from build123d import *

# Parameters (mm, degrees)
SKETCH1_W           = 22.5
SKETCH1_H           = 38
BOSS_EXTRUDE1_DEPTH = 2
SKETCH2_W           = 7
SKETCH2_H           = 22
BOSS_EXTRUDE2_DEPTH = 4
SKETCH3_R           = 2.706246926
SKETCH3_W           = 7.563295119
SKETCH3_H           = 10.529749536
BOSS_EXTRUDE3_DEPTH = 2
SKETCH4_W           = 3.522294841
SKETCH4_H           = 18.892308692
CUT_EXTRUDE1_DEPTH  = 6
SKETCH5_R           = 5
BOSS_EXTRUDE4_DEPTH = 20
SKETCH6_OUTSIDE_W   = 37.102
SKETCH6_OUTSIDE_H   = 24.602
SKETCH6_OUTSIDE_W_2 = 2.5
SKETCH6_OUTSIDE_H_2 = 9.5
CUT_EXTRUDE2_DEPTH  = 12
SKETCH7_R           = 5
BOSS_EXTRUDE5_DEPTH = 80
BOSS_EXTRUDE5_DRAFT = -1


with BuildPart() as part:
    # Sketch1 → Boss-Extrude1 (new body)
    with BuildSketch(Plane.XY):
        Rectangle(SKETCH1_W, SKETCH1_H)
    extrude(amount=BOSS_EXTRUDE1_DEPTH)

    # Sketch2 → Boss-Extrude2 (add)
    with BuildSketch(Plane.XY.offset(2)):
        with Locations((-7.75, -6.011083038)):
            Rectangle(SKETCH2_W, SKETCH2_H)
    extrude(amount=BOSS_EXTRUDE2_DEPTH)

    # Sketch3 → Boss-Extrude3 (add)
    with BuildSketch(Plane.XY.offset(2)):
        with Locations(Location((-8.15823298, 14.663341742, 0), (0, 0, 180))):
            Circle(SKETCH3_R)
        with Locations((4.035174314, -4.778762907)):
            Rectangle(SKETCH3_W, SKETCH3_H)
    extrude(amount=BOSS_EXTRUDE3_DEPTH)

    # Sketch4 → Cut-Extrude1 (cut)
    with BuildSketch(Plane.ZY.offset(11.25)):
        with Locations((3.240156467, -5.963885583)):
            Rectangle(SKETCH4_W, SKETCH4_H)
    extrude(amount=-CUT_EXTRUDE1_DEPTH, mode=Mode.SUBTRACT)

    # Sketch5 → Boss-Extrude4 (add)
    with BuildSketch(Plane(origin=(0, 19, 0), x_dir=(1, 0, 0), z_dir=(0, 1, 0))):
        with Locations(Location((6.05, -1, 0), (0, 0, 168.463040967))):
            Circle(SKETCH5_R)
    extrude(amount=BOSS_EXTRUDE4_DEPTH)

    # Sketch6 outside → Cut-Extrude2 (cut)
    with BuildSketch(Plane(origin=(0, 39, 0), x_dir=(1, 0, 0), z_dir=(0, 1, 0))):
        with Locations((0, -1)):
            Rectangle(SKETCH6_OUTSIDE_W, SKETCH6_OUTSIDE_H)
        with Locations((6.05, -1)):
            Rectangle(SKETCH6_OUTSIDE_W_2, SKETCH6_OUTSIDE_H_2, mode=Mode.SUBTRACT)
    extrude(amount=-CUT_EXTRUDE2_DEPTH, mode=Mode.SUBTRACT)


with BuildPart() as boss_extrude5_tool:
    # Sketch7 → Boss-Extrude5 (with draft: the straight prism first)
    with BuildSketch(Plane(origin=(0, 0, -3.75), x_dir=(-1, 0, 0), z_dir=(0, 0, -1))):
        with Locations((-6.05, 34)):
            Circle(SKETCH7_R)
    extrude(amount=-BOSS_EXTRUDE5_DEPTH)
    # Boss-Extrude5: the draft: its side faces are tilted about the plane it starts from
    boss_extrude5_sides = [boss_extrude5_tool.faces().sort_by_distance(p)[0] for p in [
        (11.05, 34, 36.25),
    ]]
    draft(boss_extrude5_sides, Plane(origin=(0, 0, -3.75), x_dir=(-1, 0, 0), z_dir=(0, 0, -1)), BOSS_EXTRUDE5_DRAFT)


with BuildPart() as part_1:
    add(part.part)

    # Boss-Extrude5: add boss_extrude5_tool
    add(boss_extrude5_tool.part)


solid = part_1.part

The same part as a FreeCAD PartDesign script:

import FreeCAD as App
import Part
import Sketcher
Q = App.Units.Quantity


def faces_at(feature, points):
    """Names of the faces that lie closest to the given points."""
    faces = feature.Shape.Faces
    near = lambda p: min(range(len(faces)), key=lambda i: faces[i].distToShape(Part.Vertex(*p))[0])
    return sorted({f"Face{near(p) + 1}" for p in points})

doc = App.newDocument("Part")
body = doc.addObject("PartDesign::Body", "Body")

# Sketch on XY plane
sketch1 = doc.addObject("Sketcher::SketchObject", "Sketch")
body.addObject(sketch1)
sketch1.AttachmentSupport = (doc.XY_Plane, [""])
sketch1.MapMode = "FlatFace"
sketch1.addGeometry([
    Part.LineSegment(App.Vector(-11, 19, 0), App.Vector(-11, -19, 0)),
    Part.LineSegment(App.Vector(-11, -19, 0), App.Vector(11, -19, 0)),
    Part.LineSegment(App.Vector(11, -19, 0), App.Vector(11, 19, 0)),
    Part.LineSegment(App.Vector(11, 19, 0), App.Vector(-11, 19, 0)),
], False)
sketch1.addConstraint([
    Sketcher.Constraint("Coincident", 0, 2, 1, 1),
    Sketcher.Constraint("Coincident", 1, 2, 2, 1),
    Sketcher.Constraint("Coincident", 2, 2, 3, 1),
    Sketcher.Constraint("Coincident", 3, 2, 0, 1),
    Sketcher.Constraint("Vertical", 0),
    Sketcher.Constraint("Horizontal", 1),
    Sketcher.Constraint("Vertical", 2),
    Sketcher.Constraint("Horizontal", 3),
    Sketcher.Constraint("Symmetric", 0, 2, 2, 2, -1, 1),
    Sketcher.Constraint("DistanceY", 0, 2, 0, 1, Q("38 mm")),
    Sketcher.Constraint("DistanceX", 1, 1, 1, 2, Q("22.5 mm")),
])
pad1 = doc.addObject("PartDesign::Pad", "Pad")
body.addObject(pad1)
pad1.Profile = sketch1
pad1.Length = 2

# Sketch on XY plane
sketch2 = doc.addObject("Sketcher::SketchObject", "Sketch001")
body.addObject(sketch2)
sketch2.AttachmentSupport = (doc.XY_Plane, [""])
sketch2.MapMode = "FlatFace"
sketch2.AttachmentOffset = App.Placement(App.Vector(0, 0, 2), App.Rotation())
sketch2.addGeometry([
    Part.LineSegment(App.Vector(-11, 5, 0), App.Vector(-11, -17, 0)),
    Part.LineSegment(App.Vector(-11, -17, 0), App.Vector(-4, -17, 0)),
    Part.LineSegment(App.Vector(-4, -17, 0), App.Vector(-4, 5, 0)),
    Part.LineSegment(App.Vector(-4, 5, 0), App.Vector(-11, 5, 0)),
], False)
sketch2.addConstraint([
    Sketcher.Constraint("Coincident", 0, 2, 1, 1),
    Sketcher.Constraint("Coincident", 1, 2, 2, 1),
    Sketcher.Constraint("Coincident", 2, 2, 3, 1),
    Sketcher.Constraint("Coincident", 3, 2, 0, 1),
    Sketcher.Constraint("Vertical", 0),
    Sketcher.Constraint("Horizontal", 1),
    Sketcher.Constraint("Vertical", 2),
    Sketcher.Constraint("Horizontal", 3),
    Sketcher.Constraint("DistanceX", 1, 1, 1, 2, Q("7 mm")),
    Sketcher.Constraint("DistanceY", 0, 2, 0, 1, Q("22 mm")),
    Sketcher.Constraint("DistanceX", 0, 2, -1, 1, Q("11.25 mm")),
    Sketcher.Constraint("DistanceY", 0, 2, -1, 1, Q("17.011083 mm")),
])
pad2 = doc.addObject("PartDesign::Pad", "Pad001")
body.addObject(pad2)
pad2.Profile = sketch2
pad2.Length = 4

# Sketch on XY plane
sketch3 = doc.addObject("Sketcher::SketchObject", "Sketch002")
body.addObject(sketch3)
sketch3.AttachmentSupport = (doc.XY_Plane, [""])
sketch3.MapMode = "FlatFace"
sketch3.AttachmentOffset = App.Placement(App.Vector(0, 0, 2), App.Rotation())
sketch3.addGeometry([
    Part.Circle(App.Vector(-8.2, 14.7, 0), App.Vector(0, 0, 1), 2.7),  # 0
    Part.LineSegment(App.Vector(0.3, 0.5, 0), App.Vector(0.3, -10, 0)),  # 1
    Part.LineSegment(App.Vector(0.3, -10, 0), App.Vector(7.8, -10, 0)),  # 2
    Part.LineSegment(App.Vector(7.8, -10, 0), App.Vector(7.8, 0.5, 0)),  # 3
    Part.LineSegment(App.Vector(7.8, 0.5, 0), App.Vector(0.3, 0.5, 0)),  # 4
], False)
sketch3.addConstraint([
    Sketcher.Constraint("Coincident", 1, 2, 2, 1),
    Sketcher.Constraint("Coincident", 2, 2, 3, 1),
    Sketcher.Constraint("Coincident", 3, 2, 4, 1),
    Sketcher.Constraint("Coincident", 4, 2, 1, 1),
    Sketcher.Constraint("Vertical", 1),
    Sketcher.Constraint("Horizontal", 2),
    Sketcher.Constraint("Vertical", 3),
    Sketcher.Constraint("Horizontal", 4),
    Sketcher.Constraint("Diameter", 0, Q("5.412494 mm")),
    Sketcher.Constraint("DistanceY", 1, 2, 1, 1, Q("10.52975 mm")),
    Sketcher.Constraint("DistanceX", 2, 1, 2, 2, Q("7.563295 mm")),
    Sketcher.Constraint("DistanceY", -1, 1, 0, 3, Q("14.663342 mm")),
    Sketcher.Constraint("DistanceX", -1, 1, 2, 2, Q("7.816822 mm")),
    Sketcher.Constraint("DistanceY", -1, 1, 3, 2, Q("0.486112 mm")),
    Sketcher.Constraint("DistanceX", 0, 3, 1, 2, Q("8.41176 mm")),
])
pad3 = doc.addObject("PartDesign::Pad", "Pad002")
body.addObject(pad3)
pad3.Profile = sketch3
pad3.Length = 2

# Sketch on YZ plane
sketch4 = doc.addObject("Sketcher::SketchObject", "Sketch003")
body.addObject(sketch4)
sketch4.AttachmentSupport = (doc.YZ_Plane, [""])
sketch4.MapMode = "FlatFace"
sketch4.AttachmentOffset = App.Placement(App.Vector(0, 0, -11.25), App.Rotation())
sketch4.addGeometry([
    Part.LineSegment(App.Vector(3.5, 1.5, 0), App.Vector(-15.4, 1.5, 0)),
    Part.LineSegment(App.Vector(-15.4, 1.5, 0), App.Vector(-15.4, 5, 0)),
    Part.LineSegment(App.Vector(-15.4, 5, 0), App.Vector(3.5, 5, 0)),
    Part.LineSegment(App.Vector(3.5, 5, 0), App.Vector(3.5, 1.5, 0)),
], False)
sketch4.addConstraint([
    Sketcher.Constraint("Coincident", 0, 2, 1, 1),
    Sketcher.Constraint("Coincident", 1, 2, 2, 1),
    Sketcher.Constraint("Coincident", 2, 2, 3, 1),
    Sketcher.Constraint("Coincident", 3, 2, 0, 1),
    Sketcher.Constraint("Horizontal", 0),
    Sketcher.Constraint("Vertical", 1),
    Sketcher.Constraint("Horizontal", 2),
    Sketcher.Constraint("Vertical", 3),
    Sketcher.Constraint("DistanceX", 0, 2, 0, 1, Q("18.892309 mm")),
    Sketcher.Constraint("DistanceY", 1, 1, 1, 2, Q("3.522295 mm")),
    Sketcher.Constraint("DistanceX", 0, 2, -1, 1, Q("15.41004 mm")),
    Sketcher.Constraint("DistanceY", -1, 1, 0, 2, Q("1.479009 mm")),
])
pocket1 = doc.addObject("PartDesign::Pocket", "Pocket")
body.addObject(pocket1)
pocket1.Profile = sketch4
pocket1.Length = 6
pocket1.Reversed = True

# Sketch on XZ plane
sketch5 = doc.addObject("Sketcher::SketchObject", "Sketch004")
body.addObject(sketch5)
sketch5.AttachmentSupport = (doc.XZ_Plane, [""])
sketch5.MapMode = "FlatFace"
sketch5.AttachmentOffset = App.Placement(App.Vector(0, 0, -19), App.Rotation())
sketch5.addGeometry(Part.Circle(App.Vector(6, 1, 0), App.Vector(0, 0, 1), 5), False)
sketch5.addConstraint([
    Sketcher.Constraint("Diameter", 0, Q("10 mm")),
    Sketcher.Constraint("DistanceY", -1, 1, 0, 3, Q("1 mm")),
    Sketcher.Constraint("DistanceX", -1, 1, 0, 3, Q("6.05 mm")),
])
pad4 = doc.addObject("PartDesign::Pad", "Pad003")
body.addObject(pad4)
pad4.Profile = sketch5
pad4.Length = 20
pad4.Reversed = True

# Sketch on XZ plane
sketch6 = doc.addObject("Sketcher::SketchObject", "Sketch005")
body.addObject(sketch6)
sketch6.AttachmentSupport = (doc.XZ_Plane, [""])
sketch6.MapMode = "FlatFace"
sketch6.AttachmentOffset = App.Placement(App.Vector(0, 0, -39), App.Rotation())
sketch6.addGeometry([
    Part.LineSegment(App.Vector(-18.6, -11.3, 0), App.Vector(-18.6, 13.3, 0)),  # 0
    Part.LineSegment(App.Vector(-18.6, 13.3, 0), App.Vector(18.6, 13.3, 0)),  # 1
    Part.LineSegment(App.Vector(18.6, 13.3, 0), App.Vector(18.6, -11.3, 0)),  # 2
    Part.LineSegment(App.Vector(18.6, -11.3, 0), App.Vector(-18.6, -11.3, 0)),  # 3
    Part.LineSegment(App.Vector(7.3, 5.8, 0), App.Vector(4.8, 5.8, 0)),  # 4
    Part.LineSegment(App.Vector(4.8, 5.8, 0), App.Vector(4.8, -3.8, 0)),  # 5
    Part.LineSegment(App.Vector(4.8, -3.8, 0), App.Vector(7.3, -3.8, 0)),  # 6
    Part.LineSegment(App.Vector(7.3, -3.8, 0), App.Vector(7.3, 5.8, 0)),  # 7
], False)
sketch6.addConstraint([
    Sketcher.Constraint("Coincident", 0, 2, 1, 1),
    Sketcher.Constraint("Coincident", 1, 2, 2, 1),
    Sketcher.Constraint("Coincident", 2, 2, 3, 1),
    Sketcher.Constraint("Coincident", 3, 2, 0, 1),
    Sketcher.Constraint("Coincident", 4, 2, 5, 1),
    Sketcher.Constraint("Coincident", 5, 2, 6, 1),
    Sketcher.Constraint("Coincident", 6, 2, 7, 1),
    Sketcher.Constraint("Coincident", 7, 2, 4, 1),
    Sketcher.Constraint("Vertical", 0),
    Sketcher.Constraint("Horizontal", 1),
    Sketcher.Constraint("Vertical", 2),
    Sketcher.Constraint("Horizontal", 3),
    Sketcher.Constraint("Horizontal", 4),
    Sketcher.Constraint("Vertical", 5),
    Sketcher.Constraint("Horizontal", 6),
    Sketcher.Constraint("Vertical", 7),
    Sketcher.Constraint("DistanceX", 4, 2, 4, 1, Q("2.5 mm")),
    Sketcher.Constraint("DistanceY", 5, 2, 5, 1, Q("9.5 mm")),
    Sketcher.Constraint("DistanceX", -1, 1, 4, 2, Q("4.8 mm")),
    Sketcher.Constraint("DistanceX", 1, 1, 1, 2, Q("37.102 mm")),
    Sketcher.Constraint("DistanceY", 0, 1, 0, 2, Q("24.602 mm")),
    Sketcher.Constraint("DistanceY", -1, 1, 4, 2, Q("5.75 mm")),
    Sketcher.Constraint("DistanceX", 0, 2, -1, 1, Q("18.551 mm")),
    Sketcher.Constraint("DistanceY", -1, 1, 0, 2, Q("13.301 mm")),
])
pocket2 = doc.addObject("PartDesign::Pocket", "Pocket001")
body.addObject(pocket2)
pocket2.Profile = sketch6
pocket2.Length = 12
pocket2.Reversed = True
body2 = doc.addObject("PartDesign::Body", "Body001")

# Sketch on XY plane
sketch7 = doc.addObject("Sketcher::SketchObject", "Sketch006")
body2.addObject(sketch7)
sketch7.AttachmentSupport = (doc.getObject("XY_Plane001"), [""])
sketch7.MapMode = "FlatFace"
sketch7.AttachmentOffset = App.Placement(App.Vector(0, 0, -3.75), App.Rotation())
sketch7.addGeometry(Part.Circle(App.Vector(6, 34, 0), App.Vector(0, 0, 1), 5), False)
sketch7.addConstraint([
    Sketcher.Constraint("Diameter", 0, Q("10 mm")),
    Sketcher.Constraint("DistanceY", -1, 1, 0, 3, Q("34 mm")),
    Sketcher.Constraint("DistanceX", -1, 1, 0, 3, Q("6.05 mm")),
])
pad5 = doc.addObject("PartDesign::Pad", "Pad004")
body2.addObject(pad5)
pad5.Profile = sketch7
pad5.Length = 80
doc.recompute()

datumplane = doc.addObject("PartDesign::Plane", "DatumPlane")
body2.addObject(datumplane)
datumplane.AttachmentSupport = (doc.getObject("XY_Plane001"), [""])
datumplane.MapMode = "FlatFace"
datumplane.AttachmentOffset = App.Placement(App.Vector(0, 0, -3.75), App.Rotation())
draft = doc.addObject("PartDesign::Draft", "Draft")
body2.addObject(draft)
draft.Base = (pad5, faces_at(pad5, [(11.05, 34, 36.25)]))
draft.NeutralPlane = (datumplane, [""])
draft.Angle = 1
draft.Reversed = False
doc.recompute()

boolean = doc.addObject("PartDesign::Boolean", "Boolean")
body.addObject(boolean)
boolean.Type = "Fuse"
boolean.addObjects([body2])

doc.recompute()
